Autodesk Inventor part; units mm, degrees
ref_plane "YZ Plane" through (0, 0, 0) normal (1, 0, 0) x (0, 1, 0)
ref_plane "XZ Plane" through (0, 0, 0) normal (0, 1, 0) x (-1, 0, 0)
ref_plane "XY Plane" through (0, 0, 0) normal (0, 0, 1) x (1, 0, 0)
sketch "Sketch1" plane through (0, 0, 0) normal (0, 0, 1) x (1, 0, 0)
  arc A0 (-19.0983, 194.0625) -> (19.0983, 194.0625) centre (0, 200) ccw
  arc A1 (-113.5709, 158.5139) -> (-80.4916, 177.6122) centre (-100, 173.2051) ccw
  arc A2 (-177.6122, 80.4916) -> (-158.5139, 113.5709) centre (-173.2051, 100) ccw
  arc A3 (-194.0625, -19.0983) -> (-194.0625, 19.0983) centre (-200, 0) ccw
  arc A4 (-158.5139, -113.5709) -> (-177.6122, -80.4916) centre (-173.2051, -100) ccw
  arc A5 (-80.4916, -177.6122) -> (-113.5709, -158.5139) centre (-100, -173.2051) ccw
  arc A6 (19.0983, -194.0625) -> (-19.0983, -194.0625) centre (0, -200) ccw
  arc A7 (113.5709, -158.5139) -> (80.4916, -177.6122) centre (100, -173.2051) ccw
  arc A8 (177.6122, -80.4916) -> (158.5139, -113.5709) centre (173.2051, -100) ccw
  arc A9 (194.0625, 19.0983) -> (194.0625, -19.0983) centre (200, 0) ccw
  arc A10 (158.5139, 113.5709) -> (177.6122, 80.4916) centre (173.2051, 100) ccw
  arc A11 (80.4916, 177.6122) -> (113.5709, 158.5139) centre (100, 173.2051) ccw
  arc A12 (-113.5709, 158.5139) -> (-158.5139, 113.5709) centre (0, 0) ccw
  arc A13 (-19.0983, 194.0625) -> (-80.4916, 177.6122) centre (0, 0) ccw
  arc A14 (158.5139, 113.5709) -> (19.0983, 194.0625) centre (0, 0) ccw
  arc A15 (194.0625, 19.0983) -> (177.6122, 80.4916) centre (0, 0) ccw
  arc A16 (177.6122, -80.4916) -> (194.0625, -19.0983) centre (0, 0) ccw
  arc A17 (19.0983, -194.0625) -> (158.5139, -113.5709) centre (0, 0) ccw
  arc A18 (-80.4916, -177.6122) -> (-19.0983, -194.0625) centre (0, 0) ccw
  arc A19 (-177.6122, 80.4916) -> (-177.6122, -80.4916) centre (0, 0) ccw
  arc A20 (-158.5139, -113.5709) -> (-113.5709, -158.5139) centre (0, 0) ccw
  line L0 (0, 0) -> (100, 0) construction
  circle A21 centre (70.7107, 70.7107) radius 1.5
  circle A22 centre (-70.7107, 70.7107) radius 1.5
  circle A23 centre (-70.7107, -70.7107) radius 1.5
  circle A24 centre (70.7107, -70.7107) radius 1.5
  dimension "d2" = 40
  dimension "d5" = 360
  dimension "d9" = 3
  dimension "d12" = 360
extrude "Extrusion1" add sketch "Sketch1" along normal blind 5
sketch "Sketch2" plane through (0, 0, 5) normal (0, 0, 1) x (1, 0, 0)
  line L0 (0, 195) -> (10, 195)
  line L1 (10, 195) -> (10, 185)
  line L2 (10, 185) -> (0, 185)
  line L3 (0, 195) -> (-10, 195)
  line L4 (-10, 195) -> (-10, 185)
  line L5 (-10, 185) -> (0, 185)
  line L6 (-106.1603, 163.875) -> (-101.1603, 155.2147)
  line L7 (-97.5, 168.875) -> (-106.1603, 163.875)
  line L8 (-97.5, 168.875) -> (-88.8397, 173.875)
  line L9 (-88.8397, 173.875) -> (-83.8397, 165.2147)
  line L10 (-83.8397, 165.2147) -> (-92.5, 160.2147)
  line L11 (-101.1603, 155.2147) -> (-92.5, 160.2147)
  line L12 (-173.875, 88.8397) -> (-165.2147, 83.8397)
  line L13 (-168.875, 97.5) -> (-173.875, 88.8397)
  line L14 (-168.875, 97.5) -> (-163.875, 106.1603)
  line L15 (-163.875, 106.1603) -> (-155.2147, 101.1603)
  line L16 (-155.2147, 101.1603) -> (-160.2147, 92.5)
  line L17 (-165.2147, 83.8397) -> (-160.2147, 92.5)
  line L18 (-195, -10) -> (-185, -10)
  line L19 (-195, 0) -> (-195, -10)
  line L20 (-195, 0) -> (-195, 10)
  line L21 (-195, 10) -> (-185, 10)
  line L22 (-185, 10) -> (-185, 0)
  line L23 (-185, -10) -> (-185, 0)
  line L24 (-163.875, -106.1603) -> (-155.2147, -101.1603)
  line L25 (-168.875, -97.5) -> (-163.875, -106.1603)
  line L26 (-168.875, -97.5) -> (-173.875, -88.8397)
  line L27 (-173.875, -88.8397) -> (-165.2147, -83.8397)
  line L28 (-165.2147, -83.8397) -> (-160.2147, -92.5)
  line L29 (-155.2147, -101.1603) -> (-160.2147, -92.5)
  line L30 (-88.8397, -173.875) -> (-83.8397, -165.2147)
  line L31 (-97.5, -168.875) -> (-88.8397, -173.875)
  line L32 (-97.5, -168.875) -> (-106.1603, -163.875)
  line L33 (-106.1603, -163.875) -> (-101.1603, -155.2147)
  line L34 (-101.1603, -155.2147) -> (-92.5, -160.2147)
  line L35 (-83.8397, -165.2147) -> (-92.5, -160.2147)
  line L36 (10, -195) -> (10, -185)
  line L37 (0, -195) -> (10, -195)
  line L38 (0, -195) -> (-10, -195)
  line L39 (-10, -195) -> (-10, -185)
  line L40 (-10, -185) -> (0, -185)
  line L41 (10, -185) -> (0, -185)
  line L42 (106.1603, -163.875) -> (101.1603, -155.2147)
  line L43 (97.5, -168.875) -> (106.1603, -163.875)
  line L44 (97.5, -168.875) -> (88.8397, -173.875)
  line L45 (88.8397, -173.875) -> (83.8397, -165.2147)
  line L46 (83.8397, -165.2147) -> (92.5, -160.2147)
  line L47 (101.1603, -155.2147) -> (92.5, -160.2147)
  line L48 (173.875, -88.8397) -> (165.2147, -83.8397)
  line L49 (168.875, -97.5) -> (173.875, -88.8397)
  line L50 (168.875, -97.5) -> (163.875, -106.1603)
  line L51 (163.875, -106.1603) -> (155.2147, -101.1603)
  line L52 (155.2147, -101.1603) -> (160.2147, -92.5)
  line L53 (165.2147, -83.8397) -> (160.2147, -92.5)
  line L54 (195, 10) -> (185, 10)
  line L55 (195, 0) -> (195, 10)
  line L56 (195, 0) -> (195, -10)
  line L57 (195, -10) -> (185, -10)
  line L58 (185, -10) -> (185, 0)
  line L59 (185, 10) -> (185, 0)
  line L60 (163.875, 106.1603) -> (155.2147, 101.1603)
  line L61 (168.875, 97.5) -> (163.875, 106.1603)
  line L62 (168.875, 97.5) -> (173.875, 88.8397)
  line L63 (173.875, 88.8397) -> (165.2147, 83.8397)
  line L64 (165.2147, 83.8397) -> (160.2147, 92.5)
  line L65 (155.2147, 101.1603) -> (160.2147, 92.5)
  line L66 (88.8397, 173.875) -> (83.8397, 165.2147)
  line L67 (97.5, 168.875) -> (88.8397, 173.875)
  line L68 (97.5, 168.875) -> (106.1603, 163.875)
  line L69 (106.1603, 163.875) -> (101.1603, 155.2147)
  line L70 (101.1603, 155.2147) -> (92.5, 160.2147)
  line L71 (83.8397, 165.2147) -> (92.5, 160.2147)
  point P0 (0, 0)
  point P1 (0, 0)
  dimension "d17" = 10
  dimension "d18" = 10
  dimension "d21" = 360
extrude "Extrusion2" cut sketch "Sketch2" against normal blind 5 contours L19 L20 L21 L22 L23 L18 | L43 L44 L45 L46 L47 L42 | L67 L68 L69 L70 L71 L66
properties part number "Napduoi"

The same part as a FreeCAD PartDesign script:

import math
import FreeCAD as App
import Part
import Sketcher
from FreeCAD import Vector
Q = App.Units.Quantity


def add_polygon(sketch, points):
    """Adds a closed chain of lines whose ends are joined by coincident constraints."""
    first, n = sketch.GeometryCount, len(points)
    for a, b in zip(points, points[1:] + points[:1]):
        sketch.addGeometry(Part.LineSegment(App.Vector(*a, 0), App.Vector(*b, 0)), False)
    for i in range(n):
        sketch.addConstraint(Sketcher.Constraint("Coincident", first + i, 2, first + (i + 1) % n, 1))

doc = App.newDocument("Part")
params = doc.addObject("Spreadsheet::Sheet", "Params")
for row, (alias, value) in enumerate([
    ("sketch1_diameter", "3 mm"),
    ("sketch1_radius", "20 mm"),
    ("sketch1_radius2", "195 mm"),
    ("pad1_length", "5 mm"),
    ("sketch2_width", "10 mm"),
    ("sketch2_length", "10 mm"),
    ("pocket1_length", "5 mm"),
], start=1):
    params.set(f"A{row}", alias)
    params.set(f"B{row}", "=" + value)
    params.setAlias(f"B{row}", alias)

body = doc.addObject("PartDesign::Body", "Body")

# Sketch on XY plane
sketch1 = body.newObject("Sketcher::SketchObject", "Sketch")
sketch1.AttachmentSupport = (doc.getObject("XY_Plane"), [""])
sketch1.MapMode = "FlatFace"
sketch1.addGeometry([
    Part.ArcOfCircle(Part.Circle(Vector(0, 200, 0), Vector(0, 0, 1), 20), math.radians(-163), math.radians(-17)),  # 0
    Part.ArcOfCircle(Part.Circle(Vector(0, 0, 0), Vector(0, 0, 1), 195), math.radians(95.62), math.radians(114.38)),  # 1
    Part.ArcOfCircle(Part.Circle(Vector(-100, 173.2, 0), Vector(0, 0, 1), 20), math.radians(-133), math.radians(13)),  # 2
    Part.ArcOfCircle(Part.Circle(Vector(0, 0, 0), Vector(0, 0, 1), 195), math.radians(125.62), math.radians(144.38)),  # 3
    Part.ArcOfCircle(Part.Circle(Vector(-173.2, 100, 0), Vector(0, 0, 1), 20), math.radians(-103), math.radians(43)),  # 4
    Part.ArcOfCircle(Part.Circle(Vector(0, 0, 0), Vector(0, 0, 1), 195), math.radians(156), math.radians(204)),  # 5
    Part.ArcOfCircle(Part.Circle(Vector(-173.2, -100, 0), Vector(0, 0, 1), 20), math.radians(-43), math.radians(103)),  # 6
    Part.ArcOfCircle(Part.Circle(Vector(0, 0, 0), Vector(0, 0, 1), 195), math.radians(-144.38), math.radians(-125.62)),  # 7
    Part.ArcOfCircle(Part.Circle(Vector(-100, -173.2, 0), Vector(0, 0, 1), 20), math.radians(-13), math.radians(133)),  # 8
    Part.ArcOfCircle(Part.Circle(Vector(0, 0, 0), Vector(0, 0, 1), 195), math.radians(-114.38), math.radians(-95.62)),  # 9
    Part.ArcOfCircle(Part.Circle(Vector(0, -200, 0), Vector(0, 0, 1), 20), math.radians(17), math.radians(163)),  # 10
    Part.ArcOfCircle(Part.Circle(Vector(0, 0, 0), Vector(0, 0, 1), 195), math.radians(-84), math.radians(-36)),  # 11
    Part.ArcOfCircle(Part.Circle(Vector(173.2, -100, 0), Vector(0, 0, 1), 20), math.radians(77), math.radians(223)),  # 12
    Part.ArcOfCircle(Part.Circle(Vector(0, 0, 0), Vector(0, 0, 1), 195), math.radians(-24.38), math.radians(-5.62)),  # 13
    Part.ArcOfCircle(Part.Circle(Vector(200, 0, 0), Vector(0, 0, 1), 20), math.radians(107), math.radians(253)),  # 14
    Part.ArcOfCircle(Part.Circle(Vector(0, 0, 0), Vector(0, 0, 1), 195), math.radians(5.62), math.radians(24.38)),  # 15
    Part.ArcOfCircle(Part.Circle(Vector(173.2, 100, 0), Vector(0, 0, 1), 20), math.radians(137), math.radians(283)),  # 16
    Part.ArcOfCircle(Part.Circle(Vector(0, 0, 0), Vector(0, 0, 1), 195), math.radians(36), math.radians(84)),  # 17
    Part.Circle(Vector(-70.7, -70.7, 0), Vector(0, 0, 1), 1.5),  # 18
    Part.Circle(Vector(70.7, -70.7, 0), Vector(0, 0, 1), 1.5),  # 19
    Part.Circle(Vector(-70.7, 70.7, 0), Vector(0, 0, 1), 1.5),  # 20
    Part.Circle(Vector(70.7, 70.7, 0), Vector(0, 0, 1), 1.5),  # 21
], False)
sketch1.addConstraint([
    Sketcher.Constraint("Coincident", 0, 1, 1, 1),
    Sketcher.Constraint("Coincident", 1, 2, 2, 2),
    Sketcher.Constraint("Coincident", 2, 1, 3, 1),
    Sketcher.Constraint("Coincident", 3, 2, 4, 2),
    Sketcher.Constraint("Coincident", 4, 1, 5, 1),
    Sketcher.Constraint("Coincident", 5, 2, 6, 2),
    Sketcher.Constraint("Coincident", 6, 1, 7, 1),
    Sketcher.Constraint("Coincident", 7, 2, 8, 2),
    Sketcher.Constraint("Coincident", 8, 1, 9, 1),
    Sketcher.Constraint("Coincident", 9, 2, 10, 2),
    Sketcher.Constraint("Coincident", 10, 1, 11, 1),
    Sketcher.Constraint("Coincident", 11, 2, 12, 2),
    Sketcher.Constraint("Coincident", 12, 1, 13, 1),
    Sketcher.Constraint("Coincident", 13, 2, 14, 2),
    Sketcher.Constraint("Coincident", 14, 1, 15, 1),
    Sketcher.Constraint("Coincident", 15, 2, 16, 2),
    Sketcher.Constraint("Coincident", 16, 1, 17, 1),
    Sketcher.Constraint("Coincident", 17, 2, 0, 2),
    Sketcher.Constraint("Coincident", 1, 3, -1, 1),
    Sketcher.Constraint("Coincident", 3, 3, -1, 1),
    Sketcher.Constraint("Coincident", 5, 3, -1, 1),
    Sketcher.Constraint("Coincident", 7, 3, -1, 1),
    Sketcher.Constraint("Coincident", 9, 3, -1, 1),
    Sketcher.Constraint("Coincident", 11, 3, -1, 1),
    Sketcher.Constraint("Coincident", 13, 3, -1, 1),
    Sketcher.Constraint("Coincident", 15, 3, -1, 1),
    Sketcher.Constraint("Coincident", 17, 3, -1, 1),
    Sketcher.Constraint("Equal", 0, 2),
    Sketcher.Constraint("Equal", 1, 3),
    Sketcher.Constraint("Equal", 2, 4),
    Sketcher.Constraint("Equal", 3, 5),
    Sketcher.Constraint("Equal", 4, 6),
    Sketcher.Constraint("Equal", 5, 7),
    Sketcher.Constraint("Equal", 6, 8),
    Sketcher.Constraint("Equal", 7, 9),
    Sketcher.Constraint("Equal", 8, 10),
    Sketcher.Constraint("Equal", 9, 11),
    Sketcher.Constraint("Equal", 10, 12),
    Sketcher.Constraint("Equal", 11, 13),
    Sketcher.Constraint("Equal", 12, 14),
    Sketcher.Constraint("Equal", 13, 15),
    Sketcher.Constraint("Equal", 14, 16),
    Sketcher.Constraint("Equal", 15, 17),
    Sketcher.Constraint("Equal", 18, 19),
    Sketcher.Constraint("Equal", 19, 20),
    Sketcher.Constraint("Equal", 20, 21),
    Sketcher.Constraint("Symmetric", 0, 3, 10, 3, -1, 1),
    Sketcher.Constraint("Symmetric", 4, 3, 12, 3, -1, 1),
    Sketcher.Constraint("Symmetric", 6, 3, 16, 3, -1, 1),
    Sketcher.Constraint("Symmetric", 19, 3, 20, 3, -1, 1),
    Sketcher.Constraint("Symmetric", 18, 3, 21, 3, -1, 1),
    Sketcher.Constraint("Symmetric", 6, 3, 12, 3, -2),
    Sketcher.Constraint("Symmetric", 18, 3, 19, 3, -2),
    Sketcher.Constraint("Symmetric", 2, 3, 8, 3, -1),
    Sketcher.Constraint("PointOnObject", 0, 3, -2),
    Sketcher.Constraint("PointOnObject", 14, 3, -1),
    Sketcher.Constraint("Diameter", 18, Q("3 mm")),
    Sketcher.Constraint("Radius", 0, Q("20 mm")),
    Sketcher.Constraint("Radius", 1, Q("195 mm")),
    Sketcher.Constraint("DistanceY", -1, 1, 0, 3, Q("200 mm")),
    Sketcher.Constraint("DistanceX", 2, 3, -1, 1, Q("100 mm")),
    Sketcher.Constraint("DistanceY", -1, 1, 4, 3, Q("100 mm")),
    Sketcher.Constraint("DistanceX", -1, 1, 14, 3, Q("200 mm")),
    Sketcher.Constraint("DistanceX", 8, 1, 10, 1, Q("99.59 mm")),
    Sketcher.Constraint("DistanceY", 12, 1, 14, 1, Q("99.59 mm")),
    Sketcher.Constraint("DistanceX", 0, 1, 21, 3, Q("89.809 mm")),
    Sketcher.Constraint("DistanceY", 20, 3, 4, 1, Q("9.781 mm")),
])
sketch1.setExpression("Constraints[56]", "Params.sketch1_diameter")
sketch1.setExpression("Constraints[57]", "Params.sketch1_radius")
sketch1.setExpression("Constraints[58]", "Params.sketch1_radius2")
pad1 = body.newObject("PartDesign::Pad", "Pad")
pad1.Profile = sketch1
pad1.setExpression("Length", "Params.pad1_length")

# Sketch on XY plane
sketch2 = body.newObject("Sketcher::SketchObject", "Sketch001")
sketch2.AttachmentSupport = (doc.getObject("XY_Plane"), [""])
sketch2.MapMode = "FlatFace"
sketch2.AttachmentOffset = App.Placement(Vector(0, 0, 5), App.Rotation())
add_polygon(sketch2, [(-195, 10), (-195, -10), (-185, -10), (-185, 10)])  # lines 0-3
add_polygon(sketch2, [(89, -174), (106, -164), (101, -155), (84, -165)])  # lines 4-7
add_polygon(sketch2, [(106, 164), (89, 174), (84, 165), (101, 155)])  # lines 8-11
sketch2.addConstraint([
    Sketcher.Constraint("Vertical", 0),
    Sketcher.Constraint("Horizontal", 1),
    Sketcher.Constraint("Vertical", 2),
    Sketcher.Constraint("Horizontal", 3),
    Sketcher.Constraint("Symmetric", 7, 2, 8, 2, -1),
    Sketcher.Constraint("Symmetric", 6, 2, 9, 2, -1),
    Sketcher.Constraint("Symmetric", 5, 2, 10, 2, -1),
    Sketcher.Constraint("Symmetric", 4, 2, 11, 2, -1),
    Sketcher.Constraint("Perpendicular", 4, 5),
    Sketcher.Constraint("Perpendicular", 5, 6),
    Sketcher.Constraint("Perpendicular", 6, 7),
    Sketcher.Constraint("DistanceX", 1, 1, 1, 2, Q("10 mm")),
    Sketcher.Constraint("Distance", 5, Q("10 mm")),
    Sketcher.Constraint("DistanceY", 0, 2, -1, 1, Q("10 mm")),
    Sketcher.Constraint("DistanceY", -1, 1, 2, 2, Q("10 mm")),
    Sketcher.Constraint("DistanceY", 6, 2, 5, 2, Q("10 mm")),
    Sketcher.Constraint("Angle", 4, Q("29.9999 deg")),
    Sketcher.Constraint("DistanceX", 0, 2, -1, 1, Q("195 mm")),
    Sketcher.Constraint("DistanceY", 4, 2, 11, 2, Q("327.75 mm")),
    Sketcher.Constraint("DistanceX", -1, 1, 4, 2, Q("106.1603 mm")),
])
sketch2.setExpression("Constraints[23]", "Params.sketch2_width")
sketch2.setExpression("Constraints[24]", "Params.sketch2_length")
pocket1 = body.newObject("PartDesign::Pocket", "Pocket")
pocket1.Profile = sketch2
pocket1.setExpression("Length", "Params.pocket1_length")

doc.recompute()
